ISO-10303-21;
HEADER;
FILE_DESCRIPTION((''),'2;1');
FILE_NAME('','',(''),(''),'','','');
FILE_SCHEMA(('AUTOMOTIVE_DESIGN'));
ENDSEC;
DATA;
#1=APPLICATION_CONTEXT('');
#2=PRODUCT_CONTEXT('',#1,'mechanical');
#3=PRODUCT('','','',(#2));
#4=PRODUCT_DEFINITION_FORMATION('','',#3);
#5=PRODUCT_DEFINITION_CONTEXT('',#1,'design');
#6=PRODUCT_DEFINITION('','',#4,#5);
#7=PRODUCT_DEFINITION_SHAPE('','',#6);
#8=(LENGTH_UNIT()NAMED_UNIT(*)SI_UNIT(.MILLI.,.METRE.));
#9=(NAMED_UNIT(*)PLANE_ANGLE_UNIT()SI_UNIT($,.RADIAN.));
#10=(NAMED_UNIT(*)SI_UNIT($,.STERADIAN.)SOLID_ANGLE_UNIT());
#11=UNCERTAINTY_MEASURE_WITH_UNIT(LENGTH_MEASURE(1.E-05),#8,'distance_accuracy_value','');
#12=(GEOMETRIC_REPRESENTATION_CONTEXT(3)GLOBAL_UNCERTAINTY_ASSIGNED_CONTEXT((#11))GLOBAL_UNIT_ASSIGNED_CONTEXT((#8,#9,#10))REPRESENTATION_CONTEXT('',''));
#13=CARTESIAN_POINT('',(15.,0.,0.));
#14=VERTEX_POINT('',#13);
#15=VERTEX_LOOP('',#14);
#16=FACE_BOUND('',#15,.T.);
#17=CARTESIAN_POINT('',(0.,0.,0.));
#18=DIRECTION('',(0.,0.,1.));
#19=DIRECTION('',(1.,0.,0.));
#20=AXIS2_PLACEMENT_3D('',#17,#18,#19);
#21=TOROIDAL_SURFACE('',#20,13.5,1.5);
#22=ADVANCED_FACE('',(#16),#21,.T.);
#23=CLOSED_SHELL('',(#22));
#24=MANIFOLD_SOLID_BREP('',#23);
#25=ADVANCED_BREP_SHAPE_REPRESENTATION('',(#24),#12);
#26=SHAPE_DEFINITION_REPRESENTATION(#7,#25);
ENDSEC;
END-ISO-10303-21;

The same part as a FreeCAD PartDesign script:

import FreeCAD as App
import Part
import Sketcher

V = App.Vector
Q = App.Units.Quantity

doc = App.newDocument("Part")
body = doc.addObject("PartDesign::Body", "Body")

# Sketch on YZ plane
sketch1 = body.newObject("Sketcher::SketchObject", "Sketch")
sketch1.AttachmentSupport = (doc.getObject("YZ_Plane"), [""])
sketch1.MapMode = "FlatFace"
sketch1.addGeometry(Part.Circle(V(-13.5, 0, 0), V(0, 0, 1), 1.5), False)
sketch1.addConstraint([
    Sketcher.Constraint("PointOnObject", 0, 3, -1),
    Sketcher.Constraint("Diameter", 0, Q("3 mm")),
    Sketcher.Constraint("DistanceX", 0, 3, -1, 1, Q("13.5 mm")),
])
revolution = body.newObject("PartDesign::Revolution", "Revolution")
revolution.Profile = sketch1
revolution.ReferenceAxis = (sketch1, ["V_Axis"])
revolution.Angle = 360

doc.recompute()
